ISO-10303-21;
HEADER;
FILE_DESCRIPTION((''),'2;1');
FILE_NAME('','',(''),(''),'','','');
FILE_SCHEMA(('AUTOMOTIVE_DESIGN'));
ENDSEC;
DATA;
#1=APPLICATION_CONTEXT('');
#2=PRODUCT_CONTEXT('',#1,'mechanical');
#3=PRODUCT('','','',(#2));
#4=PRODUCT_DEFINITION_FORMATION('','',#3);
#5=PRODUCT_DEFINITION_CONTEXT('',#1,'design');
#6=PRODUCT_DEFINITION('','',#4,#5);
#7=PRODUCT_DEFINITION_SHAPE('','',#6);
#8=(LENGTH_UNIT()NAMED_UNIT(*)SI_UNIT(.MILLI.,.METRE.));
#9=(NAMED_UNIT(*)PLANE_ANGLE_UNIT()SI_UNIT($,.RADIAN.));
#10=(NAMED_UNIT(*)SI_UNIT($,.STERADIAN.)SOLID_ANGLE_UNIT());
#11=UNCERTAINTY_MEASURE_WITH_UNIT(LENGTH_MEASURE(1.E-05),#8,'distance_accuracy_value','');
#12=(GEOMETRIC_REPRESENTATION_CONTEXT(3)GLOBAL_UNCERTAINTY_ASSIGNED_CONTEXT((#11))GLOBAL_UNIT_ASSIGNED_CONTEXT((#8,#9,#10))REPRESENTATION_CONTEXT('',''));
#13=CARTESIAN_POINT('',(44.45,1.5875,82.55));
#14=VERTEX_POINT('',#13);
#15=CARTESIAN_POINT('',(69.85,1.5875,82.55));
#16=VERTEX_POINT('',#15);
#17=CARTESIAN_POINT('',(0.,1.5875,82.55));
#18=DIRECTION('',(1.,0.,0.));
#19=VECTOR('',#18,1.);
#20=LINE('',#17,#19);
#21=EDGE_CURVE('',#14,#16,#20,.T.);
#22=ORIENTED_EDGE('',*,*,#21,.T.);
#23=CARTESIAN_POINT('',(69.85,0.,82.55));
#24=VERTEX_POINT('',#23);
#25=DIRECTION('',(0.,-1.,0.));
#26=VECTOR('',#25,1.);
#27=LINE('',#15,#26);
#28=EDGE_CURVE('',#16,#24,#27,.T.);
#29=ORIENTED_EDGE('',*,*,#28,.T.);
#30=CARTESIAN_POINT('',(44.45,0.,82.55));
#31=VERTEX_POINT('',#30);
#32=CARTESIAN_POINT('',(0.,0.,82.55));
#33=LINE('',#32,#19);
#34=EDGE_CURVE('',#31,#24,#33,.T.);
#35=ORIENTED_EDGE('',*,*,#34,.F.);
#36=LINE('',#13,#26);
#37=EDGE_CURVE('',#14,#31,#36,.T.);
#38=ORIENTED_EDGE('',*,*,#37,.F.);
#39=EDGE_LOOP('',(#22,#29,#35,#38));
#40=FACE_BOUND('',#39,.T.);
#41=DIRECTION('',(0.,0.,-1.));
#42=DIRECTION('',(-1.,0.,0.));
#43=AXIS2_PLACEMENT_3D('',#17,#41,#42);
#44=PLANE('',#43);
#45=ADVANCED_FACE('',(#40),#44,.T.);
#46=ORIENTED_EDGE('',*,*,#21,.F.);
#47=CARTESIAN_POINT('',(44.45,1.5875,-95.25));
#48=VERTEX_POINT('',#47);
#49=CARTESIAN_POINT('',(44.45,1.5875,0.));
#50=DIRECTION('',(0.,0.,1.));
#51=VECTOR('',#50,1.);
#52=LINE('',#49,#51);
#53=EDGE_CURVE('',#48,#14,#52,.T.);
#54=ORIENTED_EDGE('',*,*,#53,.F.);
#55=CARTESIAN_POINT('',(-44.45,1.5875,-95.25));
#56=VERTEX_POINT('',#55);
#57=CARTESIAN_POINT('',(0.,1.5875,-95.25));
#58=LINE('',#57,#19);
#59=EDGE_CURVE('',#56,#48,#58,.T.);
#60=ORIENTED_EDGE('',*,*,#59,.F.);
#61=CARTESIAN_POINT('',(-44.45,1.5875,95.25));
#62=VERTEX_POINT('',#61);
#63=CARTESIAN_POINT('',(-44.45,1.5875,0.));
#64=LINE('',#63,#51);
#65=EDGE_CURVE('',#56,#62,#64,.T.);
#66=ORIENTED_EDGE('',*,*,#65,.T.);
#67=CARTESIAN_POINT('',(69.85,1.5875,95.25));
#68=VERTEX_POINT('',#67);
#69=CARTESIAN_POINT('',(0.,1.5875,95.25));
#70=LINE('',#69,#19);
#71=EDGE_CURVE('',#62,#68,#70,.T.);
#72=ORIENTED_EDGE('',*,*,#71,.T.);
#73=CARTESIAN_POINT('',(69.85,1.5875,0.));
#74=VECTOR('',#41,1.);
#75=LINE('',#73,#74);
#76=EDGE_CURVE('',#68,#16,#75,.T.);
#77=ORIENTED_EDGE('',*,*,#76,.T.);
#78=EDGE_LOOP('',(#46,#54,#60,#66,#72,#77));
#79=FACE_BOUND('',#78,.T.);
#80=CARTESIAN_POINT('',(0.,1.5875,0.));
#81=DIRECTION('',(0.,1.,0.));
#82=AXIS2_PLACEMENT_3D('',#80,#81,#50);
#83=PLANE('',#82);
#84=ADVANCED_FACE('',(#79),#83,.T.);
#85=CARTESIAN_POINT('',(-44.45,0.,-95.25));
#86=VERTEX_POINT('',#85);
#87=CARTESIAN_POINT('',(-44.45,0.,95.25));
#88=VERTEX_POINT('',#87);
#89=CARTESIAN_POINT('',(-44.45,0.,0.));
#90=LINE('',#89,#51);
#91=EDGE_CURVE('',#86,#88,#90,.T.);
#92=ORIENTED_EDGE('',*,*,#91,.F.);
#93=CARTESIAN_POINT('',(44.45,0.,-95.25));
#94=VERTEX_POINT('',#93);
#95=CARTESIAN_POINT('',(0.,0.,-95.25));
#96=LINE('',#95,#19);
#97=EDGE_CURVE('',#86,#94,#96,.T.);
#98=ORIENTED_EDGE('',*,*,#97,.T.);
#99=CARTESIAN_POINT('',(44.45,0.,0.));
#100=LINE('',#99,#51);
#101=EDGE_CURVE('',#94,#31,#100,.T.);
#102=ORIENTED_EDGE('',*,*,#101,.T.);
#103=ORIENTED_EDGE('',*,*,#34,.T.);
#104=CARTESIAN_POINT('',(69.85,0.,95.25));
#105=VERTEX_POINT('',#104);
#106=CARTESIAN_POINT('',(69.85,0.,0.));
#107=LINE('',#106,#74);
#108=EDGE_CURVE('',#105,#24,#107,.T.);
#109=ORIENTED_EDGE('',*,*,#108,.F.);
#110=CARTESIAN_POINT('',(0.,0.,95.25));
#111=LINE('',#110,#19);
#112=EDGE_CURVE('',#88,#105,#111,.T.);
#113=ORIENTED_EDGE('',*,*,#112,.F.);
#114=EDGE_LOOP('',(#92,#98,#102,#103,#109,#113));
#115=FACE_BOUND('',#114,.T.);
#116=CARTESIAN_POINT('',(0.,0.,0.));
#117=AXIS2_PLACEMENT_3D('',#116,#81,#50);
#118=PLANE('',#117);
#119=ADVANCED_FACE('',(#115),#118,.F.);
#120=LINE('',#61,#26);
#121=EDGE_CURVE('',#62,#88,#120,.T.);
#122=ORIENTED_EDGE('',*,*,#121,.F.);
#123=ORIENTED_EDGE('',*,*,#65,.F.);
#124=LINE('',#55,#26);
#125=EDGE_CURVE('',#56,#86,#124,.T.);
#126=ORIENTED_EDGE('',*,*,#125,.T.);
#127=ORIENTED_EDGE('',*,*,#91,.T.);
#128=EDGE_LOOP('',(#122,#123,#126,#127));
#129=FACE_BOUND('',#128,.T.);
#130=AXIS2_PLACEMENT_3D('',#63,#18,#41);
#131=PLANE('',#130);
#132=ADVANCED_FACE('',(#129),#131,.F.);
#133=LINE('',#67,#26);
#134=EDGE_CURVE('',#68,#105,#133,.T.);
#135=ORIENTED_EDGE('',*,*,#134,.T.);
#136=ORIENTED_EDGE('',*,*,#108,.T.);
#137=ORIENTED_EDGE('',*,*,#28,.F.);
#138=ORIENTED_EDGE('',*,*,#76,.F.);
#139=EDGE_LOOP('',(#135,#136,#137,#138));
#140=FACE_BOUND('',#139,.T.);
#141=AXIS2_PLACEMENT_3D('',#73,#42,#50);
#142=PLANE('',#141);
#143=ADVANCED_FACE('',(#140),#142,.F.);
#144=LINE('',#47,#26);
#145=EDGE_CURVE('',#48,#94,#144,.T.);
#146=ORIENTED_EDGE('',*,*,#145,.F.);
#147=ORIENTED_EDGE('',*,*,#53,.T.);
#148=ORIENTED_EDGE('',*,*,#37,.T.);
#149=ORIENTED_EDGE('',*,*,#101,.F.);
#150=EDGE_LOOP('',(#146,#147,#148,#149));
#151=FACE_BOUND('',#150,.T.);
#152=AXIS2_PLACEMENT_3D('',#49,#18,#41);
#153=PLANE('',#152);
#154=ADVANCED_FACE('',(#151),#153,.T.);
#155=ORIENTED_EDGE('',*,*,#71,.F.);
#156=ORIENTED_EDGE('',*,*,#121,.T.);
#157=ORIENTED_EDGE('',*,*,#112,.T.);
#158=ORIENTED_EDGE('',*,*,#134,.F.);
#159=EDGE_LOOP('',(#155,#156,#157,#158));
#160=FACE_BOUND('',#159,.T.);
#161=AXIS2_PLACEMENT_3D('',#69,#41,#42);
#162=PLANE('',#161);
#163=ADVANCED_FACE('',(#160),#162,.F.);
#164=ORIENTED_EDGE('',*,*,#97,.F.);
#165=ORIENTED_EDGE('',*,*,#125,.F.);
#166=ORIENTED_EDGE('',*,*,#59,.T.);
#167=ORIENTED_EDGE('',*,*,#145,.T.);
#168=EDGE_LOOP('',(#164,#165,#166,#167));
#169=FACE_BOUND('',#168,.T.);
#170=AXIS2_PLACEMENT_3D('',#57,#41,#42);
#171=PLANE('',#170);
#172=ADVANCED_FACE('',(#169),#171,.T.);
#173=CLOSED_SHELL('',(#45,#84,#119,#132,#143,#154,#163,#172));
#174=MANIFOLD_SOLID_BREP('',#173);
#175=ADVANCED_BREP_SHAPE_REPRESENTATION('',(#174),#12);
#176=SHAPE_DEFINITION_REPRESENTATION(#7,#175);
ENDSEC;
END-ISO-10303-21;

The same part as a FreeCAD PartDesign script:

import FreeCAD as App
import Part
import Sketcher
from FreeCAD import Vector
Q = App.Units.Quantity


def add_polygon(sketch, points):
    """Adds a closed chain of lines whose ends are joined by coincident constraints."""
    first, n = sketch.GeometryCount, len(points)
    for a, b in zip(points, points[1:] + points[:1]):
        sketch.addGeometry(Part.LineSegment(App.Vector(*a, 0), App.Vector(*b, 0)), False)
    for i in range(n):
        sketch.addConstraint(Sketcher.Constraint("Coincident", first + i, 2, first + (i + 1) % n, 1))

doc = App.newDocument("Part")
body = doc.addObject("PartDesign::Body", "Body")

# Sketch on XZ plane
sketch1 = body.newObject("Sketcher::SketchObject", "Sketch")
sketch1.AttachmentSupport = (doc.getObject("XZ_Plane"), [""])
sketch1.MapMode = "FlatFace"
add_polygon(sketch1, [(-44, 95), (70, 95), (70, 83), (44, 83), (44, -95), (-44, -95)])  # lines 0-5
sketch1.addConstraint([
    Sketcher.Constraint("Horizontal", 0),
    Sketcher.Constraint("Vertical", 1),
    Sketcher.Constraint("Horizontal", 2),
    Sketcher.Constraint("Vertical", 3),
    Sketcher.Constraint("Horizontal", 4),
    Sketcher.Constraint("Vertical", 5),
    Sketcher.Constraint("Symmetric", 3, 2, 5, 2, -1, 1),
    Sketcher.Constraint("DistanceX", 2, 2, 2, 1, Q("1 in")),
    Sketcher.Constraint("DistanceY", 3, 2, 3, 1, Q("7 in")),
    Sketcher.Constraint("DistanceX", 0, 1, 0, 2, Q("4.5 in")),
    Sketcher.Constraint("DistanceY", 1, 2, 1, 1, Q("0.5 in")),
])
pad1 = body.newObject("PartDesign::Pad", "Pad")
pad1.Profile = sketch1
pad1.Length = Q("0.0625 in")
pad1.Reversed = True

doc.recompute()
